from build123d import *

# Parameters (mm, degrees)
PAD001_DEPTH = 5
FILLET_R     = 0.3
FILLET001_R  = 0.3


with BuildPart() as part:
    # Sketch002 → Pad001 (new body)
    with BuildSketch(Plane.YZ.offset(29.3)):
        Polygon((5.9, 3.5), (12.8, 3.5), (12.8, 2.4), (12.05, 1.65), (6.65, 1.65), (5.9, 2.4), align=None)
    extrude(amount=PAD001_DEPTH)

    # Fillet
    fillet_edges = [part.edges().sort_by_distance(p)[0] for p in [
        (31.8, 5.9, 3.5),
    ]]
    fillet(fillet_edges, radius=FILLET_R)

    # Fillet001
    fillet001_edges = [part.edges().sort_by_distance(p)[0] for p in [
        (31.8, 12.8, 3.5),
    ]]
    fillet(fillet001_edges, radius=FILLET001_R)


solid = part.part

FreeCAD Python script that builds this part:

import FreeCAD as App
import Part
import Sketcher
from FreeCAD import Vector


def edges_at(feature, points):
    """Names of the edges that pass closest to the given points."""
    edges = feature.Shape.Edges
    near = lambda p: min(range(len(edges)), key=lambda i: edges[i].distToShape(Part.Vertex(*p))[0])
    return sorted({f"Edge{near(p) + 1}" for p in points})


def add_polygon(sketch, points):
    """Adds a closed chain of lines whose ends are joined by coincident constraints."""
    first, n = sketch.GeometryCount, len(points)
    for a, b in zip(points, points[1:] + points[:1]):
        sketch.addGeometry(Part.LineSegment(App.Vector(*a, 0), App.Vector(*b, 0)), False)
    for i in range(n):
        sketch.addConstraint(Sketcher.Constraint("Coincident", first + i, 2, first + (i + 1) % n, 1))

doc = App.newDocument("Part")
body = doc.addObject("PartDesign::Body", "Body")

# Sketch on YZ plane
sketch1 = body.newObject("Sketcher::SketchObject", "Sketch")
sketch1.AttachmentSupport = (doc.getObject("YZ_Plane"), [""])
sketch1.MapMode = "FlatFace"
sketch1.AttachmentOffset = App.Placement(Vector(0, 0, 29.3), App.Rotation())
add_polygon(sketch1, [(12.8, 3.5), (5.9, 3.5), (5.9, 2.4), (6.7, 1.6), (12.1, 1.6), (12.8, 2.4)])  # lines 0-5
sketch1.addConstraint(Sketcher.Constraint("Horizontal", 0))
sketch1.addConstraint(Sketcher.Constraint("Vertical", 1))
sketch1.addConstraint(Sketcher.Constraint("Horizontal", 3))
sketch1.addConstraint(Sketcher.Constraint("Vertical", 5))
sketch1.addConstraint(Sketcher.Constraint("Perpendicular", 2, 4))
sketch1.addConstraint(Sketcher.Constraint("Horizontal", 1, 2, 4, 2))
sketch1.addConstraint(Sketcher.Constraint("Equal", 2, 4))
sketch1.addConstraint(Sketcher.Constraint("DistanceX", 0, 2, 0, 1, 6.9))
sketch1.addConstraint(Sketcher.Constraint("DistanceX", 3, 1, 3, 2, 5.4))
sketch1.addConstraint(Sketcher.Constraint("DistanceY", 1, 2, 1, 1, 1.1))
sketch1.addConstraint(Sketcher.Constraint("DistanceX", -1, 1, 0, 2, 5.9))
sketch1.addConstraint(Sketcher.Constraint("DistanceY", -1, 1, 0, 2, 3.5))
pad1 = body.newObject("PartDesign::Pad", "Pad")
pad1.Profile = sketch1
pad1.Length = 5
doc.recompute()

fillet = body.newObject("PartDesign::Fillet", "Fillet")
fillet.Base = (pad1, edges_at(pad1, [(31.8, 5.9, 3.5)]))
fillet.Radius = 0.3
doc.recompute()

fillet2 = body.newObject("PartDesign::Fillet", "Fillet001")
fillet2.Base = (fillet, edges_at(fillet, [(31.8, 12.8, 3.5)]))
fillet2.Radius = 0.3

doc.recompute()
